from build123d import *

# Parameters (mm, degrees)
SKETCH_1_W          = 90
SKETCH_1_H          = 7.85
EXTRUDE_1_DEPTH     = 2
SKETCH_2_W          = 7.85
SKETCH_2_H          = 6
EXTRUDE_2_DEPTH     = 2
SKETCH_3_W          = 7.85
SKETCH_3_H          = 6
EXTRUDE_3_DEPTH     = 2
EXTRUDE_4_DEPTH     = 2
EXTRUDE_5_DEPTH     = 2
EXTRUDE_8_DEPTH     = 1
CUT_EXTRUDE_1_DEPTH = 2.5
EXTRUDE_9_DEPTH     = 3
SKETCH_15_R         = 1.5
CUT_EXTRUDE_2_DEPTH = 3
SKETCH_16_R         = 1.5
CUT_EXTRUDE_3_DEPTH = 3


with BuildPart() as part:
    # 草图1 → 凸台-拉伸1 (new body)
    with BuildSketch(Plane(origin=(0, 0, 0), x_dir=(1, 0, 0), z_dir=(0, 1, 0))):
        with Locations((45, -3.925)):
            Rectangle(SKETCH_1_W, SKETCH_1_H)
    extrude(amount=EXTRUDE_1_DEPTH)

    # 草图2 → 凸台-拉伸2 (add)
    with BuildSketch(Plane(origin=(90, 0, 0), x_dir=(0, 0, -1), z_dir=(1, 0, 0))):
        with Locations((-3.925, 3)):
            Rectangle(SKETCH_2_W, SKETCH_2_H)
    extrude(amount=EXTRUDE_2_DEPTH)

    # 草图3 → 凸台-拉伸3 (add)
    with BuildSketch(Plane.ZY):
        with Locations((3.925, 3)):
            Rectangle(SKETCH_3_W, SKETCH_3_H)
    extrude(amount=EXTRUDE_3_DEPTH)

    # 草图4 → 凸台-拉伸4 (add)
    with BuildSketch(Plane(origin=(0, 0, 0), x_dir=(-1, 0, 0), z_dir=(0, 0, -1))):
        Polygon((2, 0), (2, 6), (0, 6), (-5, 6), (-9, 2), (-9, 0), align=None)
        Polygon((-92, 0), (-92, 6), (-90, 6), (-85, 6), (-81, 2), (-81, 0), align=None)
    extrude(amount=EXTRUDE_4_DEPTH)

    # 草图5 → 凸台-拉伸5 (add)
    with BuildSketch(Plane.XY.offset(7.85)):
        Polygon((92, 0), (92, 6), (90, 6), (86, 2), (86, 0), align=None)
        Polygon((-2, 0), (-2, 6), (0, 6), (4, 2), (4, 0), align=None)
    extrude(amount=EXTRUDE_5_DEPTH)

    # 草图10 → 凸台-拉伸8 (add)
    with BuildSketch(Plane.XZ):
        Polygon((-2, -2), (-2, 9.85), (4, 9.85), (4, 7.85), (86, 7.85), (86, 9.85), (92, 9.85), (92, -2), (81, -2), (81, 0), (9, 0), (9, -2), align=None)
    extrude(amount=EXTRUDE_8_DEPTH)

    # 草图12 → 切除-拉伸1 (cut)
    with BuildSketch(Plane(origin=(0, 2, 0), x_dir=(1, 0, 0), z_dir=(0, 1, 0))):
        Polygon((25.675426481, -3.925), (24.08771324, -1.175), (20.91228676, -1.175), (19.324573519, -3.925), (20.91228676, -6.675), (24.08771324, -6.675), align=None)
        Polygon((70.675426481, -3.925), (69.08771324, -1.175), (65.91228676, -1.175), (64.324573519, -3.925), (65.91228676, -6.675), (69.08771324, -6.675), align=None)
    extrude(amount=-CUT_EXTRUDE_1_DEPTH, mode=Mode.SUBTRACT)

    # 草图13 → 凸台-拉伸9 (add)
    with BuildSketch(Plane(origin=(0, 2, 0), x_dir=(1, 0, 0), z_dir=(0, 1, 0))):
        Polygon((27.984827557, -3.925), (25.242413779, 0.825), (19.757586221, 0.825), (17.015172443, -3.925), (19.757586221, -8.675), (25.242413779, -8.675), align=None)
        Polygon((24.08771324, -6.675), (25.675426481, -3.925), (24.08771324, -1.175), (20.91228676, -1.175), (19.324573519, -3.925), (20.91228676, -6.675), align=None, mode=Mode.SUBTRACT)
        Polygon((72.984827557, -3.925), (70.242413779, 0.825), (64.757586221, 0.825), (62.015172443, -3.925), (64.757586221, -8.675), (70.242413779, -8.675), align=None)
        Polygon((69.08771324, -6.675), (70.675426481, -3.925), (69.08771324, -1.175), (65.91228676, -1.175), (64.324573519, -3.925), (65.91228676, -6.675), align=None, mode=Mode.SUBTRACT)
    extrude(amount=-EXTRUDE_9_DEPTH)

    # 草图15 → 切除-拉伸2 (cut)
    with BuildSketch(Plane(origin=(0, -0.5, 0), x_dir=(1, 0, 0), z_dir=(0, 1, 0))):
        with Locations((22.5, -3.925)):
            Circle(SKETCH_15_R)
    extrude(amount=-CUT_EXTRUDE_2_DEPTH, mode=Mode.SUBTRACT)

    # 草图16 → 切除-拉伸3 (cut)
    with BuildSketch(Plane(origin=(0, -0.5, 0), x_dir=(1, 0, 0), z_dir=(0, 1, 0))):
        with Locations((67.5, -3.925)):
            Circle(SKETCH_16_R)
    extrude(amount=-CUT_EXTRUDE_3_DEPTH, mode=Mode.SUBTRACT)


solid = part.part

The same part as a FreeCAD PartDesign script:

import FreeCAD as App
import Part
import Sketcher

V = App.Vector
Q = App.Units.Quantity


def add_polygon(sketch, points):
    """Adds a closed chain of lines whose ends are joined by coincident constraints."""
    first, n = sketch.GeometryCount, len(points)
    for a, b in zip(points, points[1:] + points[:1]):
        sketch.addGeometry(Part.LineSegment(App.Vector(*a, 0), App.Vector(*b, 0)), False)
    for i in range(n):
        sketch.addConstraint(Sketcher.Constraint("Coincident", first + i, 2, first + (i + 1) % n, 1))

doc = App.newDocument("Part")
body = doc.addObject("PartDesign::Body", "Body")

# Sketch on XZ plane
sketch1 = body.newObject("Sketcher::SketchObject", "Sketch")
sketch1.AttachmentSupport = (doc.getObject("XZ_Plane"), [""])
sketch1.MapMode = "FlatFace"
add_polygon(sketch1, [(0, 0), (0, 7.85), (90, 7.85), (90, 0)])  # lines 0-3
sketch1.addConstraint(Sketcher.Constraint("Vertical", 0))
sketch1.addConstraint(Sketcher.Constraint("Horizontal", 1))
sketch1.addConstraint(Sketcher.Constraint("Vertical", 2))
sketch1.addConstraint(Sketcher.Constraint("Horizontal", 3))
sketch1.addConstraint(Sketcher.Constraint("Coincident", 3, 2, -1, 1))
sketch1.addConstraint(Sketcher.Constraint("DistanceX", 1, 1, 1, 2, 90.0))
sketch1.addConstraint(Sketcher.Constraint("DistanceY", 0, 1, 0, 2, 7.85))
pad1 = body.newObject("PartDesign::Pad", "Pad")
pad1.Profile = sketch1
pad1.Length = 2
pad1.Reversed = True

# Sketch on YZ plane
sketch2 = body.newObject("Sketcher::SketchObject", "Sketch001")
sketch2.AttachmentSupport = (doc.getObject("YZ_Plane"), [""])
sketch2.MapMode = "FlatFace"
sketch2.AttachmentOffset = App.Placement(V(0, 0, 90), App.Rotation())
add_polygon(sketch2, [(6, 7.85), (0, 7.85), (0, 0), (6, 0)])  # lines 0-3
sketch2.addConstraint(Sketcher.Constraint("Horizontal", 0))
sketch2.addConstraint(Sketcher.Constraint("Vertical", 1))
sketch2.addConstraint(Sketcher.Constraint("Horizontal", 2))
sketch2.addConstraint(Sketcher.Constraint("Vertical", 3))
sketch2.addConstraint(Sketcher.Constraint("Coincident", 1, 2, -1, 1))
sketch2.addConstraint(Sketcher.Constraint("DistanceX", 0, 2, 0, 1, 6.0))
sketch2.addConstraint(Sketcher.Constraint("DistanceY", 1, 2, 1, 1, 7.85))
pad2 = body.newObject("PartDesign::Pad", "Pad001")
pad2.Profile = sketch2
pad2.Length = 2

# Sketch on YZ plane
sketch3 = body.newObject("Sketcher::SketchObject", "Sketch002")
sketch3.AttachmentSupport = (doc.getObject("YZ_Plane"), [""])
sketch3.MapMode = "FlatFace"
add_polygon(sketch3, [(6, 0), (0, 0), (0, 7.85), (6, 7.85)])  # lines 0-3
sketch3.addConstraint(Sketcher.Constraint("Horizontal", 0))
sketch3.addConstraint(Sketcher.Constraint("Vertical", 1))
sketch3.addConstraint(Sketcher.Constraint("Horizontal", 2))
sketch3.addConstraint(Sketcher.Constraint("Vertical", 3))
sketch3.addConstraint(Sketcher.Constraint("Coincident", 0, 2, -1, 1))
sketch3.addConstraint(Sketcher.Constraint("DistanceX", 0, 2, 0, 1, 6.0))
sketch3.addConstraint(Sketcher.Constraint("DistanceY", 1, 1, 1, 2, 7.85))
pad3 = body.newObject("PartDesign::Pad", "Pad002")
pad3.Profile = sketch3
pad3.Length = 2
pad3.Reversed = True

# Sketch on XY plane
sketch4 = body.newObject("Sketcher::SketchObject", "Sketch003")
sketch4.AttachmentSupport = (doc.getObject("XY_Plane"), [""])
sketch4.MapMode = "FlatFace"
add_polygon(sketch4, [(-2, 0), (-2, 6), (5, 6), (9, 2), (9, 0)])  # lines 0-4
add_polygon(sketch4, [(92, 6), (92, 0), (81, 0), (81, 2), (85, 6)])  # lines 5-9
sketch4.addConstraint(Sketcher.Constraint("Vertical", 0))
sketch4.addConstraint(Sketcher.Constraint("Horizontal", 1))
sketch4.addConstraint(Sketcher.Constraint("Vertical", 3))
sketch4.addConstraint(Sketcher.Constraint("Horizontal", 4))
sketch4.addConstraint(Sketcher.Constraint("Vertical", 5))
sketch4.addConstraint(Sketcher.Constraint("Horizontal", 6))
sketch4.addConstraint(Sketcher.Constraint("Vertical", 7))
sketch4.addConstraint(Sketcher.Constraint("Horizontal", 9))
sketch4.addConstraint(Sketcher.Constraint("PointOnObject", 3, 2, -1))
sketch4.addConstraint(Sketcher.Constraint("PointOnObject", 5, 2, -1))
sketch4.addConstraint(Sketcher.Constraint("Perpendicular", 2, 8))
sketch4.addConstraint(Sketcher.Constraint("Horizontal", 2, 2, 7, 2))
sketch4.addConstraint(Sketcher.Constraint("Horizontal", 1, 2, 8, 2))
sketch4.addConstraint(Sketcher.Constraint("Equal", 4, 6))
sketch4.addConstraint(Sketcher.Constraint("Equal", 1, 9))
sketch4.addConstraint(Sketcher.Constraint("DistanceX", 1, 1, 1, 2, 7.0))
sketch4.addConstraint(Sketcher.Constraint("DistanceX", 4, 2, 4, 1, 11.0))
sketch4.addConstraint(Sketcher.Constraint("DistanceY", 0, 1, 0, 2, 6.0))
sketch4.addConstraint(Sketcher.Constraint("DistanceX", 0, 2, -1, 1, 2.0))
sketch4.addConstraint(Sketcher.Constraint("DistanceX", -1, 1, 5, 2, 92.0))
pad4 = body.newObject("PartDesign::Pad", "Pad003")
pad4.Profile = sketch4
pad4.Length = 2
pad4.Reversed = True

# Sketch on XY plane
sketch5 = body.newObject("Sketcher::SketchObject", "Sketch004")
sketch5.AttachmentSupport = (doc.getObject("XY_Plane"), [""])
sketch5.MapMode = "FlatFace"
sketch5.AttachmentOffset = App.Placement(V(0, 0, 7.85), App.Rotation())
add_polygon(sketch5, [(92, 0), (92, 6), (90, 6), (86, 2), (86, 0)])  # lines 0-4
add_polygon(sketch5, [(-2, 6), (-2, 0), (4, 0), (4, 2), (0, 6)])  # lines 5-9
sketch5.addConstraint(Sketcher.Constraint("Vertical", 0))
sketch5.addConstraint(Sketcher.Constraint("Horizontal", 1))
sketch5.addConstraint(Sketcher.Constraint("Vertical", 3))
sketch5.addConstraint(Sketcher.Constraint("Horizontal", 4))
sketch5.addConstraint(Sketcher.Constraint("Vertical", 5))
sketch5.addConstraint(Sketcher.Constraint("Horizontal", 6))
sketch5.addConstraint(Sketcher.Constraint("Vertical", 7))
sketch5.addConstraint(Sketcher.Constraint("Horizontal", 9))
sketch5.addConstraint(Sketcher.Constraint("PointOnObject", 3, 2, -1))
sketch5.addConstraint(Sketcher.Constraint("PointOnObject", 5, 2, -1))
sketch5.addConstraint(Sketcher.Constraint("PointOnObject", 8, 2, -2))
sketch5.addConstraint(Sketcher.Constraint("Perpendicular", 2, 8))
sketch5.addConstraint(Sketcher.Constraint("Horizontal", 2, 2, 7, 2))
sketch5.addConstraint(Sketcher.Constraint("Horizontal", 1, 2, 8, 2))
sketch5.addConstraint(Sketcher.Constraint("Equal", 4, 6))
sketch5.addConstraint(Sketcher.Constraint("Equal", 1, 9))
sketch5.addConstraint(Sketcher.Constraint("Equal", 6, 0))
sketch5.addConstraint(Sketcher.Constraint("DistanceX", 1, 2, 1, 1, 2.0))
sketch5.addConstraint(Sketcher.Constraint("DistanceX", 4, 1, 4, 2, 6.0))
sketch5.addConstraint(Sketcher.Constraint("DistanceX", -1, 1, 0, 2, 92.0))
pad5 = body.newObject("PartDesign::Pad", "Pad004")
pad5.Profile = sketch5
pad5.Length = 2

# Sketch on XZ plane
sketch6 = body.newObject("Sketcher::SketchObject", "Sketch005")
sketch6.AttachmentSupport = (doc.getObject("XZ_Plane"), [""])
sketch6.MapMode = "FlatFace"
add_polygon(sketch6, [(-2, 9.85), (-2, -2), (9, -2), (9, 0), (81, 0), (81, -2), (92, -2), (92, 9.85), (86, 9.85), (86, 7.85), (4, 7.85), (4, 9.85)])  # lines 0-11
sketch6.addConstraint(Sketcher.Constraint("Vertical", 0))
sketch6.addConstraint(Sketcher.Constraint("Horizontal", 1))
sketch6.addConstraint(Sketcher.Constraint("Vertical", 2))
sketch6.addConstraint(Sketcher.Constraint("Horizontal", 3))
sketch6.addConstraint(Sketcher.Constraint("Vertical", 4))
sketch6.addConstraint(Sketcher.Constraint("Horizontal", 5))
sketch6.addConstraint(Sketcher.Constraint("Vertical", 6))
sketch6.addConstraint(Sketcher.Constraint("Horizontal", 7))
sketch6.addConstraint(Sketcher.Constraint("Vertical", 8))
sketch6.addConstraint(Sketcher.Constraint("Horizontal", 9))
sketch6.addConstraint(Sketcher.Constraint("Vertical", 10))
sketch6.addConstraint(Sketcher.Constraint("Horizontal", 11))
sketch6.addConstraint(Sketcher.Constraint("PointOnObject", 2, 2, -1))
sketch6.addConstraint(Sketcher.Constraint("Horizontal", 1, 2, 4, 2))
sketch6.addConstraint(Sketcher.Constraint("Horizontal", 7, 2, 10, 2))
sketch6.addConstraint(Sketcher.Constraint("Equal", 1, 5))
sketch6.addConstraint(Sketcher.Constraint("Equal", 7, 11))
sketch6.addConstraint(Sketcher.Constraint("Equal", 4, 8))
sketch6.addConstraint(Sketcher.Constraint("DistanceX", 1, 1, 1, 2, 11.0))
sketch6.addConstraint(Sketcher.Constraint("DistanceX", 3, 1, 3, 2, 72.0))
sketch6.addConstraint(Sketcher.Constraint("DistanceX", 7, 2, 7, 1, 6.0))
sketch6.addConstraint(Sketcher.Constraint("DistanceY", 2, 1, 2, 2, 2.0))
sketch6.addConstraint(Sketcher.Constraint("DistanceX", 0, 2, -1, 1, 2.0))
sketch6.addConstraint(Sketcher.Constraint("DistanceY", 0, 2, 0, 1, 11.85))
pad6 = body.newObject("PartDesign::Pad", "Pad005")
pad6.Profile = sketch6
pad6.Length = 1

# Sketch on XZ plane
sketch7 = body.newObject("Sketcher::SketchObject", "Sketch006")
sketch7.AttachmentSupport = (doc.getObject("XZ_Plane"), [""])
sketch7.MapMode = "FlatFace"
sketch7.AttachmentOffset = App.Placement(V(0, 0, -2), App.Rotation())
add_polygon(sketch7, [(25.675426, 3.925), (24.087713, 1.175), (20.912287, 1.175), (19.324574, 3.925), (20.912287, 6.675), (24.087713, 6.675)])  # lines 0-5
add_polygon(sketch7, [(70.675426, 3.925), (69.087713, 1.175), (65.912287, 1.175), (64.324574, 3.925), (65.912287, 6.675), (69.087713, 6.675)])  # lines 6-11
sketch7.addConstraint(Sketcher.Constraint("Horizontal", 1))
sketch7.addConstraint(Sketcher.Constraint("Horizontal", 4))
sketch7.addConstraint(Sketcher.Constraint("Horizontal", 7))
sketch7.addConstraint(Sketcher.Constraint("Horizontal", 10))
sketch7.addConstraint(Sketcher.Constraint("Parallel", 0, 3))
sketch7.addConstraint(Sketcher.Constraint("Parallel", 2, 5))
sketch7.addConstraint(Sketcher.Constraint("Parallel", 3, 6))
sketch7.addConstraint(Sketcher.Constraint("Parallel", 5, 8))
sketch7.addConstraint(Sketcher.Constraint("Parallel", 6, 9))
sketch7.addConstraint(Sketcher.Constraint("Parallel", 8, 11))
sketch7.addConstraint(Sketcher.Constraint("Horizontal", 2, 2, 5, 2))
sketch7.addConstraint(Sketcher.Constraint("Horizontal", 1, 2, 6, 2))
sketch7.addConstraint(Sketcher.Constraint("Horizontal", 5, 2, 8, 2))
sketch7.addConstraint(Sketcher.Constraint("Horizontal", 4, 2, 9, 2))
sketch7.addConstraint(Sketcher.Constraint("Horizontal", 8, 2, 11, 2))
sketch7.addConstraint(Sketcher.Constraint("Vertical", 1, 2, 3, 2))
sketch7.addConstraint(Sketcher.Constraint("Vertical", 0, 2, 4, 2))
sketch7.addConstraint(Sketcher.Constraint("Equal", 4, 7))
sketch7.addConstraint(Sketcher.Constraint("Angle", 0, Q("-120 deg")))
sketch7.addConstraint(Sketcher.Constraint("DistanceX", 0, 2, 6, 2, 45.0))
sketch7.addConstraint(Sketcher.Constraint("DistanceY", 1, 2, 3, 2, 5.5))
sketch7.addConstraint(Sketcher.Constraint("DistanceY", -1, 1, 0, 2, 1.175))
sketch7.addConstraint(Sketcher.Constraint("DistanceX", 1, 2, 1, 1, 3.175426))
sketch7.addConstraint(Sketcher.Constraint("DistanceX", -1, 1, 0, 2, 24.087713))
pocket1 = body.newObject("PartDesign::Pocket", "Pocket")
pocket1.Profile = sketch7
pocket1.Length = 2.5
pocket1.Reversed = True

# Sketch on XZ plane
sketch8 = body.newObject("Sketcher::SketchObject", "Sketch007")
sketch8.AttachmentSupport = (doc.getObject("XZ_Plane"), [""])
sketch8.MapMode = "FlatFace"
sketch8.AttachmentOffset = App.Placement(V(0, 0, -2), App.Rotation())
add_polygon(sketch8, [(27.984828, 3.925), (25.242414, -0.825), (19.757586, -0.825), (17.015172, 3.925), (19.757586, 8.675), (25.242414, 8.675)])  # lines 0-5
add_polygon(sketch8, [(25.675426, 3.925), (24.087713, 6.675), (20.912287, 6.675), (19.324574, 3.925), (20.912287, 1.175), (24.087713, 1.175)])  # lines 6-11
add_polygon(sketch8, [(72.984828, 3.925), (70.242414, -0.825), (64.757586, -0.825), (62.015172, 3.925), (64.757586, 8.675), (70.242414, 8.675)])  # lines 12-17
add_polygon(sketch8, [(70.675426, 3.925), (69.087713, 6.675), (65.912287, 6.675), (64.324574, 3.925), (65.912287, 1.175), (69.087713, 1.175)])  # lines 18-23
sketch8.addConstraint(Sketcher.Constraint("Horizontal", 1))
sketch8.addConstraint(Sketcher.Constraint("Horizontal", 4))
sketch8.addConstraint(Sketcher.Constraint("Horizontal", 7))
sketch8.addConstraint(Sketcher.Constraint("Horizontal", 10))
sketch8.addConstraint(Sketcher.Constraint("Horizontal", 13))
sketch8.addConstraint(Sketcher.Constraint("Horizontal", 16))
sketch8.addConstraint(Sketcher.Constraint("Horizontal", 19))
sketch8.addConstraint(Sketcher.Constraint("Horizontal", 22))
sketch8.addConstraint(Sketcher.Constraint("Parallel", 0, 3))
sketch8.addConstraint(Sketcher.Constraint("Parallel", 2, 5))
sketch8.addConstraint(Sketcher.Constraint("Parallel", 5, 6))
sketch8.addConstraint(Sketcher.Constraint("Parallel", 3, 8))
sketch8.addConstraint(Sketcher.Constraint("Parallel", 6, 9))
sketch8.addConstraint(Sketcher.Constraint("Parallel", 8, 11))
sketch8.addConstraint(Sketcher.Constraint("Parallel", 11, 12))
sketch8.addConstraint(Sketcher.Constraint("Parallel", 9, 14))
sketch8.addConstraint(Sketcher.Constraint("Parallel", 12, 15))
sketch8.addConstraint(Sketcher.Constraint("Parallel", 14, 17))
sketch8.addConstraint(Sketcher.Constraint("Parallel", 17, 18))
sketch8.addConstraint(Sketcher.Constraint("Parallel", 15, 20))
sketch8.addConstraint(Sketcher.Constraint("Parallel", 18, 21))
sketch8.addConstraint(Sketcher.Constraint("Parallel", 20, 23))
sketch8.addConstraint(Sketcher.Constraint("Horizontal", 2, 2, 5, 2))
sketch8.addConstraint(Sketcher.Constraint("Horizontal", 5, 2, 8, 2))
sketch8.addConstraint(Sketcher.Constraint("Horizontal", 8, 2, 11, 2))
sketch8.addConstraint(Sketcher.Constraint("Horizontal", 1, 2, 12, 2))
sketch8.addConstraint(Sketcher.Constraint("Horizontal", 11, 2, 14, 2))
sketch8.addConstraint(Sketcher.Constraint("Horizontal", 4, 2, 15, 2))
sketch8.addConstraint(Sketcher.Constraint("Horizontal", 14, 2, 17, 2))
sketch8.addConstraint(Sketcher.Constraint("Horizontal", 7, 2, 18, 2))
sketch8.addConstraint(Sketcher.Constraint("Horizontal", 17, 2, 20, 2))
sketch8.addConstraint(Sketcher.Constraint("Horizontal", 10, 2, 21, 2))
sketch8.addConstraint(Sketcher.Constraint("Horizontal", 20, 2, 23, 2))
sketch8.addConstraint(Sketcher.Constraint("Vertical", 1, 2, 3, 2))
sketch8.addConstraint(Sketcher.Constraint("Vertical", 0, 2, 4, 2))
sketch8.addConstraint(Sketcher.Constraint("Vertical", 7, 2, 9, 2))
sketch8.addConstraint(Sketcher.Constraint("Equal", 4, 13))
sketch8.addConstraint(Sketcher.Constraint("Equal", 10, 19))
sketch8.addConstraint(Sketcher.Constraint("Angle", 0, Q("-120 deg")))
sketch8.addConstraint(Sketcher.Constraint("DistanceY", 6, 2, 4, 2, 2.0))
sketch8.addConstraint(Sketcher.Constraint("DistanceX", 0, 2, 12, 2, 45.0))
sketch8.addConstraint(Sketcher.Constraint("DistanceY", 1, 2, 3, 2, 9.5))
sketch8.addConstraint(Sketcher.Constraint("DistanceY", 0, 2, -1, 1, 0.825))
sketch8.addConstraint(Sketcher.Constraint("DistanceX", 6, 2, 4, 2, 1.154701))
sketch8.addConstraint(Sketcher.Constraint("DistanceX", 3, 2, 7, 2, 1.154701))
sketch8.addConstraint(Sketcher.Constraint("DistanceX", 18, 2, 16, 2, 1.154701))
sketch8.addConstraint(Sketcher.Constraint("DistanceX", 1, 2, 1, 1, 5.484828))
sketch8.addConstraint(Sketcher.Constraint("DistanceX", -1, 1, 0, 2, 25.242414))
pad7 = body.newObject("PartDesign::Pad", "Pad006")
pad7.Profile = sketch8
pad7.Length = 3

# Sketch on XZ plane
sketch9 = body.newObject("Sketcher::SketchObject", "Sketch008")
sketch9.AttachmentSupport = (doc.getObject("XZ_Plane"), [""])
sketch9.MapMode = "FlatFace"
sketch9.AttachmentOffset = App.Placement(V(0, 0, 0.5), App.Rotation())
sketch9.addGeometry(Part.Circle(V(22.5, 3.925, 0), V(0, 0, 1), 1.5), False)
sketch9.addConstraint(Sketcher.Constraint("Diameter", 0, 3.0))
sketch9.addConstraint(Sketcher.Constraint("DistanceX", -1, 1, 0, 3, 22.5))
sketch9.addConstraint(Sketcher.Constraint("DistanceY", -1, 1, 0, 3, 3.925))
pocket2 = body.newObject("PartDesign::Pocket", "Pocket001")
pocket2.Profile = sketch9
pocket2.Length = 3
pocket2.Reversed = True

# Sketch on XZ plane
sketch10 = body.newObject("Sketcher::SketchObject", "Sketch009")
sketch10.AttachmentSupport = (doc.getObject("XZ_Plane"), [""])
sketch10.MapMode = "FlatFace"
sketch10.AttachmentOffset = App.Placement(V(0, 0, 0.5), App.Rotation())
sketch10.addGeometry(Part.Circle(V(67.5, 3.925, 0), V(0, 0, 1), 1.5), False)
sketch10.addConstraint(Sketcher.Constraint("Diameter", 0, 3.0))
sketch10.addConstraint(Sketcher.Constraint("DistanceX", -1, 1, 0, 3, 67.5))
sketch10.addConstraint(Sketcher.Constraint("DistanceY", -1, 1, 0, 3, 3.925))
pocket3 = body.newObject("PartDesign::Pocket", "Pocket002")
pocket3.Profile = sketch10
pocket3.Length = 3
pocket3.Reversed = True

doc.recompute()
